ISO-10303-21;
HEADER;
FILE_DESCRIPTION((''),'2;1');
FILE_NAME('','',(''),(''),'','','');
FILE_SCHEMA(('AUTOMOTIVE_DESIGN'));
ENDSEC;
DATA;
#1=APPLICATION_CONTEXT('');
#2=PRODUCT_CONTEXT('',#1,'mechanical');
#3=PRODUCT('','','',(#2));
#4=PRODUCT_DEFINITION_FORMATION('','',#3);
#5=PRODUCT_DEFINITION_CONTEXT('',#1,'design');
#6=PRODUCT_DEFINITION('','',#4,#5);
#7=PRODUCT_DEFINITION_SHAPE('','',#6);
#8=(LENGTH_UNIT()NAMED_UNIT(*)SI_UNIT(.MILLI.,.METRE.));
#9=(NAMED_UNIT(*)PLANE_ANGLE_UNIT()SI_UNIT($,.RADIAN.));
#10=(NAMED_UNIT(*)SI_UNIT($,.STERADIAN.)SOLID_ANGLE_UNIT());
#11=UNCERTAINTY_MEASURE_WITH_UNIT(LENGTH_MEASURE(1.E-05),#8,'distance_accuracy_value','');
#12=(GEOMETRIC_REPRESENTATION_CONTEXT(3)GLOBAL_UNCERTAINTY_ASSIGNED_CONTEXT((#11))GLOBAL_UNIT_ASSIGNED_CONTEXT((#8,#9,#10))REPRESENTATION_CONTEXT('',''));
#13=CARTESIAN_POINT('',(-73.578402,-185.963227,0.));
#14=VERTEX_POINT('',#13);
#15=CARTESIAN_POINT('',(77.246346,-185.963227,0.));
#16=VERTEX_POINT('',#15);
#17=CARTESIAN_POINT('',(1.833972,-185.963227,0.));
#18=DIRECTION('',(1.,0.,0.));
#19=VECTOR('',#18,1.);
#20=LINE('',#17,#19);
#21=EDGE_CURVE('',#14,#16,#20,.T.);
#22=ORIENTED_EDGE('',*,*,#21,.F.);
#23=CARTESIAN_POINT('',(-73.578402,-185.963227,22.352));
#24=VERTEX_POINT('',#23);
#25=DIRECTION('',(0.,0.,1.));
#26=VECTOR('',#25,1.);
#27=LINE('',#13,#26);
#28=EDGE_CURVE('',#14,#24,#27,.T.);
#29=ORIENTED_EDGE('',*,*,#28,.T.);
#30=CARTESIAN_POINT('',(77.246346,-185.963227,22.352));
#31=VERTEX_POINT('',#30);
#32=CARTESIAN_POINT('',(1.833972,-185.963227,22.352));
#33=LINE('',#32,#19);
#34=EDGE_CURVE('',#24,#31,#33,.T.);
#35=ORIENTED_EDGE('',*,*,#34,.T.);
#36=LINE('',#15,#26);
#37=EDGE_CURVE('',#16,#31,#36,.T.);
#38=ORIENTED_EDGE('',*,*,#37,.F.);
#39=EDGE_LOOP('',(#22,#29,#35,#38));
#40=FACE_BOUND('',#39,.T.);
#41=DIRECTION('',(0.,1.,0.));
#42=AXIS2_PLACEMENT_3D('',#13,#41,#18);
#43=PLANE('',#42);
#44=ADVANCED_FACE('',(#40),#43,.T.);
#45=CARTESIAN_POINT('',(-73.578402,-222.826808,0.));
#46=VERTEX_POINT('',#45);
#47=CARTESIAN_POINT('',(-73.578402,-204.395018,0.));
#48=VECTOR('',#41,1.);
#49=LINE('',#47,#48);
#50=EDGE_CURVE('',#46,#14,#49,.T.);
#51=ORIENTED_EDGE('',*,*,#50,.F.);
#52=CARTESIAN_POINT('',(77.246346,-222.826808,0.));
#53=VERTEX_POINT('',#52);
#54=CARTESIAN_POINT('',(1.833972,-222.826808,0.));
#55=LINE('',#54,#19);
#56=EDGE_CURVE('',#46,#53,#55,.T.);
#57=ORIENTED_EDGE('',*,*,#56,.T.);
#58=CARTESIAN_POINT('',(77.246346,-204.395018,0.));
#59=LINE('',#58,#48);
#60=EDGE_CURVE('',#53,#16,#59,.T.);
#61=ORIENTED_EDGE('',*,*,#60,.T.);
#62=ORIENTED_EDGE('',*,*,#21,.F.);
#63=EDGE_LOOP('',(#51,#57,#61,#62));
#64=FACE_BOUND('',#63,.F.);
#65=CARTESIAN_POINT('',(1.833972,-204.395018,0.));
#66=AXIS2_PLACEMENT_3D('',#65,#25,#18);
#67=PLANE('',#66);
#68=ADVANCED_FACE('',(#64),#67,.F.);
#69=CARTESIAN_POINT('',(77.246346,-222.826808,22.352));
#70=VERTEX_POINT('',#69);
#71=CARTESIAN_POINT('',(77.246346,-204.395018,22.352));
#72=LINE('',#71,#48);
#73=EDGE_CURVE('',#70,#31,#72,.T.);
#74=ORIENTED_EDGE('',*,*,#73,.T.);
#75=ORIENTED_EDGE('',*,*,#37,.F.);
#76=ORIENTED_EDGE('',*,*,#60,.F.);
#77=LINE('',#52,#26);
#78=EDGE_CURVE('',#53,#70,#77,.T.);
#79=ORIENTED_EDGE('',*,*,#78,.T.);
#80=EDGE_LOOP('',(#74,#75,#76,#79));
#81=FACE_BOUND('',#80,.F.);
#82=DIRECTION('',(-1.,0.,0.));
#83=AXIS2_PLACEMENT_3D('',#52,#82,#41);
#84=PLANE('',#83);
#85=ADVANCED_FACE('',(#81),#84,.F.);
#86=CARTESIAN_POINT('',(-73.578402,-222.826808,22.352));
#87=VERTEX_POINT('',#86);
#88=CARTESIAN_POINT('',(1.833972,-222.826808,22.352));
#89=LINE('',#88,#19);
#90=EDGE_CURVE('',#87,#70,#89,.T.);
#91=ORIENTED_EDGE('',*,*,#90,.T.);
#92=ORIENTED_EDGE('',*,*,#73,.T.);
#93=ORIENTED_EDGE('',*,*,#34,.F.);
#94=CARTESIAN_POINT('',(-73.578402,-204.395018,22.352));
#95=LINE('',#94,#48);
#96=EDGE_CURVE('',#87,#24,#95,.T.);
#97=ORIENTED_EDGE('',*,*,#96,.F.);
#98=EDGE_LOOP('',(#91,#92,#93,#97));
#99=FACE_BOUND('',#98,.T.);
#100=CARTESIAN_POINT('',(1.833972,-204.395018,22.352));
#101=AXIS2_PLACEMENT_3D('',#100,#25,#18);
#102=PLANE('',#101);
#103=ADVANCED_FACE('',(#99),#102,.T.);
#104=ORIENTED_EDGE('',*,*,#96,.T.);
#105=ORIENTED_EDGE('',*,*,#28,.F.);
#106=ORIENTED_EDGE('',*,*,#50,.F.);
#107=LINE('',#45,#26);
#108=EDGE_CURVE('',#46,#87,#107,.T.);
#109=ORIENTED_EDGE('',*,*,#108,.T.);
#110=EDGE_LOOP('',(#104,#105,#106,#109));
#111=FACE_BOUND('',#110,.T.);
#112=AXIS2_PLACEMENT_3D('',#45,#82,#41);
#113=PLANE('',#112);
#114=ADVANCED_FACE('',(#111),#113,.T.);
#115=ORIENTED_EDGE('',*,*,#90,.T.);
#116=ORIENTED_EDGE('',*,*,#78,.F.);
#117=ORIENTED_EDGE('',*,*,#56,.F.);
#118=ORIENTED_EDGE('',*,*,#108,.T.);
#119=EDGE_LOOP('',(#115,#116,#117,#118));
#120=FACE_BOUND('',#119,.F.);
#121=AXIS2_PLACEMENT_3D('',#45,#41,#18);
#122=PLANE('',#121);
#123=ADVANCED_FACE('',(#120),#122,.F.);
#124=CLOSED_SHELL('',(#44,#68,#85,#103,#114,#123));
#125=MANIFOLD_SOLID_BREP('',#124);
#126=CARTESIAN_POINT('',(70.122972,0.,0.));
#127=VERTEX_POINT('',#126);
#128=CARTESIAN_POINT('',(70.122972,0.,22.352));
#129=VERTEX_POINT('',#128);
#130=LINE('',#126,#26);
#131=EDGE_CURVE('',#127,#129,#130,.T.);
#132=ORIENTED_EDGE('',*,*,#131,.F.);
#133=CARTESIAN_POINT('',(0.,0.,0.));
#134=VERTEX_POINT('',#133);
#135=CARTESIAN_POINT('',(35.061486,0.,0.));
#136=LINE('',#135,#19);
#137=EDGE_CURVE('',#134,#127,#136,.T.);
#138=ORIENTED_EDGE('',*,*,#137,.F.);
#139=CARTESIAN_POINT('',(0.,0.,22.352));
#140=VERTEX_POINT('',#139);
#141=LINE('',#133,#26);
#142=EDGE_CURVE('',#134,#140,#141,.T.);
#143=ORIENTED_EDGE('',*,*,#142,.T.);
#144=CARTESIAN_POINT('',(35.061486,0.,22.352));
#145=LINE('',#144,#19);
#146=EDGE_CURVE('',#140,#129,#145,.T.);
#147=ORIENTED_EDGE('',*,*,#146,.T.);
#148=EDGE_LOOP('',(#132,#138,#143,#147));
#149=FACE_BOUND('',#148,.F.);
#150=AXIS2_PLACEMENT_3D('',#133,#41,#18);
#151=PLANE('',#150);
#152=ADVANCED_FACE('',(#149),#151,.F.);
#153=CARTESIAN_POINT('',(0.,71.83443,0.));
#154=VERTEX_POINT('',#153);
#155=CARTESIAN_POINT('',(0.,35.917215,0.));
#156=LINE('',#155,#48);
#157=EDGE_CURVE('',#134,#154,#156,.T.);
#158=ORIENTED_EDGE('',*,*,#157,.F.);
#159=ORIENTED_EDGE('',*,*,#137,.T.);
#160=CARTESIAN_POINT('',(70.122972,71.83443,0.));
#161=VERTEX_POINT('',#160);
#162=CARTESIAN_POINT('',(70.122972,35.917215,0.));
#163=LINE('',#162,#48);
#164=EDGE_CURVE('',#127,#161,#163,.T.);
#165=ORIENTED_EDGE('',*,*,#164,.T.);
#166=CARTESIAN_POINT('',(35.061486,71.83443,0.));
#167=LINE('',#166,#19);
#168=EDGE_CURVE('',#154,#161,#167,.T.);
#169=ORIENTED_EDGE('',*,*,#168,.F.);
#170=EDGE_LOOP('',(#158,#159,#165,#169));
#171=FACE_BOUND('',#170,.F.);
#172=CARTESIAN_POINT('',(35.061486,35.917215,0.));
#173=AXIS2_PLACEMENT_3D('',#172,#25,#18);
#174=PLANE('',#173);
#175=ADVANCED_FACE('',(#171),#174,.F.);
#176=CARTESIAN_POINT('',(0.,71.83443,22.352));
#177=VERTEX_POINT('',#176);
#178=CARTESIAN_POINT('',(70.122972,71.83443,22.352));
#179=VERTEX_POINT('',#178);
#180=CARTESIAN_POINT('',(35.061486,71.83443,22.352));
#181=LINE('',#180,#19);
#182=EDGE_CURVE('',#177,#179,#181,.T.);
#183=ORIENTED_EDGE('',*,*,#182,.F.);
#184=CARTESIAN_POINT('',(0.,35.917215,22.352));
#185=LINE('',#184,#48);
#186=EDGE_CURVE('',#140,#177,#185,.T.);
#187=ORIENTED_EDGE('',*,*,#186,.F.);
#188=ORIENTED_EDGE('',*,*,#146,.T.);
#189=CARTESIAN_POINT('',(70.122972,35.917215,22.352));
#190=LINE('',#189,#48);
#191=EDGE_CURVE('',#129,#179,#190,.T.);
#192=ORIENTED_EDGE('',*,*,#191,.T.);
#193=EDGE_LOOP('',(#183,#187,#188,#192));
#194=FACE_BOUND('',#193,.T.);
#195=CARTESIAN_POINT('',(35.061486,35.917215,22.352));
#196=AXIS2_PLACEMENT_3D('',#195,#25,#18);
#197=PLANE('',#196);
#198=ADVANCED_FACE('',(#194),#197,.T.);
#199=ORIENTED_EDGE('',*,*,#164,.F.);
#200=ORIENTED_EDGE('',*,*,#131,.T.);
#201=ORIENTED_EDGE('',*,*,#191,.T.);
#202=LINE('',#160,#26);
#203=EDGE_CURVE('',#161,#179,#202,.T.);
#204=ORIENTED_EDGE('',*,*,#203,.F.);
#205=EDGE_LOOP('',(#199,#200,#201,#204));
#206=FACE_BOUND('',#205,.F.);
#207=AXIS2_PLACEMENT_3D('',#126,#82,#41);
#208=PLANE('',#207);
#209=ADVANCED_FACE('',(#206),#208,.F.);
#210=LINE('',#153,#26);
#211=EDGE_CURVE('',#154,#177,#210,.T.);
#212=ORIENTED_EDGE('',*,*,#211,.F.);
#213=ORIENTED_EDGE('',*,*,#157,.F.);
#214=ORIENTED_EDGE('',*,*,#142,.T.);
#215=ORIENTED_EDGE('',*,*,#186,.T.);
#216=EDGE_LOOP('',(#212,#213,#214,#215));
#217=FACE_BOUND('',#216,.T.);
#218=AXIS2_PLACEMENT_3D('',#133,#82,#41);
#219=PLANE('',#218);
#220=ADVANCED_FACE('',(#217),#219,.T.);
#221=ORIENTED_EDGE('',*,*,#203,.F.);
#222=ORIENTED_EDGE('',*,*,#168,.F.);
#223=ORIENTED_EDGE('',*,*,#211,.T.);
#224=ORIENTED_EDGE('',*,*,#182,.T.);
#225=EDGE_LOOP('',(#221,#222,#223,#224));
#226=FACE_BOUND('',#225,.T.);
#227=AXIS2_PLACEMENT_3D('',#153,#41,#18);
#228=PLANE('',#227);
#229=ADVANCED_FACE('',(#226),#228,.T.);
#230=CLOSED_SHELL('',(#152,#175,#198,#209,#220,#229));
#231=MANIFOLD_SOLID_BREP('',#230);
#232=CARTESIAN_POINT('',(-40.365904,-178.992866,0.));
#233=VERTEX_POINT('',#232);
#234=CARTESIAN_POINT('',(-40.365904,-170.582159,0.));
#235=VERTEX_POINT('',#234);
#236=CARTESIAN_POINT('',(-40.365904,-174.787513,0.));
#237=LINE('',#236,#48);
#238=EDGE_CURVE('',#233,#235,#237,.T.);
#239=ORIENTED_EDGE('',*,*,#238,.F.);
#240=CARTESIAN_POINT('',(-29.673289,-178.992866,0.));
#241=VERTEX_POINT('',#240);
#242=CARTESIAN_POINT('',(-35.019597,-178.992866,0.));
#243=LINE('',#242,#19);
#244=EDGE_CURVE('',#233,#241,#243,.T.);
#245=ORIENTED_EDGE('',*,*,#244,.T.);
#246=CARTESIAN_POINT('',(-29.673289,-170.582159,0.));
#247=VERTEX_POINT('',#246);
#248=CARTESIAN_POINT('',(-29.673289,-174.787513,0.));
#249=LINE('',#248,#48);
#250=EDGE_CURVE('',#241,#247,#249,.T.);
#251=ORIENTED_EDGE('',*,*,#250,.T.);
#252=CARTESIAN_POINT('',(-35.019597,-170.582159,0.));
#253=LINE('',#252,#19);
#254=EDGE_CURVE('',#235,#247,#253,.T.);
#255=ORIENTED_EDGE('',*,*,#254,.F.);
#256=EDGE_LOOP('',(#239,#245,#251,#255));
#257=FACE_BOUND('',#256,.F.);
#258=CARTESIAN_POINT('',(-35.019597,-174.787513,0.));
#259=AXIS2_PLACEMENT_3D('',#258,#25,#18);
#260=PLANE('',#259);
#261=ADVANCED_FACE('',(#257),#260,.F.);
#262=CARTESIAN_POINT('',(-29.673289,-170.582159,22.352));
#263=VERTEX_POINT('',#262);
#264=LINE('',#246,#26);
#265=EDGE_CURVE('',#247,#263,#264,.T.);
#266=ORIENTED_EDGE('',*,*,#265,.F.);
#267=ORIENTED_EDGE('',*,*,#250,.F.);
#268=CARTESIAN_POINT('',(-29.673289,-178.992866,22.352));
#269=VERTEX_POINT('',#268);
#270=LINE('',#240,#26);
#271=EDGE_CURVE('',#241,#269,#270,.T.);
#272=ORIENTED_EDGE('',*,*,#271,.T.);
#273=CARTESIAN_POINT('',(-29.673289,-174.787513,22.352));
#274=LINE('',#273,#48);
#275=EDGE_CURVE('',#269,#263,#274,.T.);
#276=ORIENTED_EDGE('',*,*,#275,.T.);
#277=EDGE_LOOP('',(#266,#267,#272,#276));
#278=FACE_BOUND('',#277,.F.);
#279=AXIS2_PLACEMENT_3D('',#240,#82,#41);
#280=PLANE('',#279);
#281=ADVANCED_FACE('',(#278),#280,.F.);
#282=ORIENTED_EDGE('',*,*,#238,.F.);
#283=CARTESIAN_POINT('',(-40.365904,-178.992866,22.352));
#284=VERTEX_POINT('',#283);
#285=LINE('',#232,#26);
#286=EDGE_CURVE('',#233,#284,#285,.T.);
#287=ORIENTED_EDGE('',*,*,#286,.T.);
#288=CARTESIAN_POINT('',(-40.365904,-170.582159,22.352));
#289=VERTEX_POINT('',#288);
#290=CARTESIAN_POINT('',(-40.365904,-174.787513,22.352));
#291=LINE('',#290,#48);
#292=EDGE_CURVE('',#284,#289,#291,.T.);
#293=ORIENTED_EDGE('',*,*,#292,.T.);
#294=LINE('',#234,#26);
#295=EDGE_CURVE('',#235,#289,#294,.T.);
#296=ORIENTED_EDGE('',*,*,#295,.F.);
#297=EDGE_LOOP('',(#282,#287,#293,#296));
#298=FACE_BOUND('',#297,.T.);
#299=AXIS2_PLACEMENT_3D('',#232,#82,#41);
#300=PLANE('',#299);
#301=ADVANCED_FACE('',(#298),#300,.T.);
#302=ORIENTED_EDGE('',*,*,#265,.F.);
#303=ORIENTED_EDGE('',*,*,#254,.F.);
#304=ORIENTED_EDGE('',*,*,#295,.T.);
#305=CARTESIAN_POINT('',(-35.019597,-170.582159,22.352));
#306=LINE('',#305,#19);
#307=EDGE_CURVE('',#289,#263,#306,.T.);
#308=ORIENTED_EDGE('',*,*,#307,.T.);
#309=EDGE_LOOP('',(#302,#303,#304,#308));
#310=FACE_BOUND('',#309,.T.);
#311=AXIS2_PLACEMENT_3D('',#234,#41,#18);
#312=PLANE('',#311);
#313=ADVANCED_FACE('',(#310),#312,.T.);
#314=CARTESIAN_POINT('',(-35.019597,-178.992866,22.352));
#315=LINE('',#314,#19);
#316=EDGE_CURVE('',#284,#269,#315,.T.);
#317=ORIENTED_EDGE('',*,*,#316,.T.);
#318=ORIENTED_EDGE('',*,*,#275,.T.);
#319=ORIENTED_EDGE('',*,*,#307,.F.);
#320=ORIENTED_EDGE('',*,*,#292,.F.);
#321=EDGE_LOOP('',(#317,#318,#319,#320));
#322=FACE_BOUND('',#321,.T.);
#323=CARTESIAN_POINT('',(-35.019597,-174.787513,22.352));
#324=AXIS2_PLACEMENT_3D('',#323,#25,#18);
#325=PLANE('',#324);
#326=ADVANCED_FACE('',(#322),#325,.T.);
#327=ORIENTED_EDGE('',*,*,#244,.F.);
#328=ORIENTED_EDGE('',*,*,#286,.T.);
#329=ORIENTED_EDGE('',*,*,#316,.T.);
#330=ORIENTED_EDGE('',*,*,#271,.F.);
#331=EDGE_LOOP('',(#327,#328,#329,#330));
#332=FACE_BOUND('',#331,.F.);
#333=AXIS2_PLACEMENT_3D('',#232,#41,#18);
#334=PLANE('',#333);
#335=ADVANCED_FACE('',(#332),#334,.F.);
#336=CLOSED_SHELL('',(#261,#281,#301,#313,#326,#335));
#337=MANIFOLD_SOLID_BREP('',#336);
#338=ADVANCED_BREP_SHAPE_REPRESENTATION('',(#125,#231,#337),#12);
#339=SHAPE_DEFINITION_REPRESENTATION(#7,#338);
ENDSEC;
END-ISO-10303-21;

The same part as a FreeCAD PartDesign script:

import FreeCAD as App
import Part
import Sketcher
from FreeCAD import Vector

doc = App.newDocument("Part")
params = doc.addObject("Spreadsheet::Sheet", "Params")
for row, (alias, value) in enumerate([
    ("pad1_length", "0.88 in"),
], start=1):
    params.set(f"A{row}", alias)
    params.set(f"B{row}", "=" + value)
    params.setAlias(f"B{row}", alias)

body = doc.addObject("PartDesign::Body", "Body")
body.AllowCompound = True

sketch1 = doc.addObject("Sketcher::SketchObject", "Sketch")
body.addObject(sketch1)
sketch1.AttachmentSupport = (doc.XY_Plane, [""])
sketch1.MapMode = "FlatFace"
sketch1.addGeometry([
    Part.LineSegment(Vector(0, 72, 0), Vector(0, 0, 0)),
    Part.LineSegment(Vector(0, 0, 0), Vector(70, 0, 0)),
    Part.LineSegment(Vector(70, 0, 0), Vector(70, 72, 0)),
    Part.LineSegment(Vector(70, 72, 0), Vector(0, 72, 0)),
    Part.LineSegment(Vector(-40, -171, 0), Vector(-40, -179, 0)),
    Part.LineSegment(Vector(-40, -179, 0), Vector(-30, -179, 0)),
    Part.LineSegment(Vector(-30, -179, 0), Vector(-30, -171, 0)),
    Part.LineSegment(Vector(-30, -171, 0), Vector(-40, -171, 0)),
    Part.LineSegment(Vector(-74, -186, 0), Vector(-74, -223, 0)),
    Part.LineSegment(Vector(-74, -223, 0), Vector(77, -223, 0)),
    Part.LineSegment(Vector(77, -223, 0), Vector(77, -186, 0)),
    Part.LineSegment(Vector(77, -186, 0), Vector(-74, -186, 0)),
], False)
sketch1.addConstraint([
    Sketcher.Constraint("Coincident", 0, 2, 1, 1),
    Sketcher.Constraint("Coincident", 1, 2, 2, 1),
    Sketcher.Constraint("Coincident", 2, 2, 3, 1),
    Sketcher.Constraint("Coincident", 3, 2, 0, 1),
    Sketcher.Constraint("Coincident", 4, 2, 5, 1),
    Sketcher.Constraint("Coincident", 5, 2, 6, 1),
    Sketcher.Constraint("Coincident", 6, 2, 7, 1),
    Sketcher.Constraint("Coincident", 7, 2, 4, 1),
    Sketcher.Constraint("Coincident", 8, 2, 9, 1),
    Sketcher.Constraint("Coincident", 9, 2, 10, 1),
    Sketcher.Constraint("Coincident", 10, 2, 11, 1),
    Sketcher.Constraint("Coincident", 11, 2, 8, 1),
    Sketcher.Constraint("Vertical", 0),
    Sketcher.Constraint("Horizontal", 1),
    Sketcher.Constraint("Vertical", 2),
    Sketcher.Constraint("Horizontal", 3),
    Sketcher.Constraint("Vertical", 4),
    Sketcher.Constraint("Horizontal", 5),
    Sketcher.Constraint("Vertical", 6),
    Sketcher.Constraint("Horizontal", 7),
    Sketcher.Constraint("Vertical", 8),
    Sketcher.Constraint("Horizontal", 9),
    Sketcher.Constraint("Vertical", 10),
    Sketcher.Constraint("Horizontal", 11),
    Sketcher.Constraint("Coincident", 0, 2, -1, 1),
    Sketcher.Constraint("DistanceX", 9, 1, 9, 2, 150.824748),
    Sketcher.Constraint("DistanceY", 0, 2, 0, 1, 71.83443),
    Sketcher.Constraint("DistanceY", 8, 2, 8, 1, 36.863581),
    Sketcher.Constraint("DistanceX", 8, 2, -1, 1, 73.578402),
    Sketcher.Constraint("DistanceX", 1, 1, 1, 2, 70.122972),
    Sketcher.Constraint("DistanceX", 5, 1, 5, 2, 10.692615),
    Sketcher.Constraint("DistanceY", 4, 2, 4, 1, 8.410707),
    Sketcher.Constraint("DistanceX", 5, 2, -1, 1, 29.673289),
    Sketcher.Constraint("DistanceY", 6, 2, -1, 1, 170.582159),
    Sketcher.Constraint("DistanceY", 8, 2, -1, 1, 222.826808),
])
pad1 = doc.addObject("PartDesign::Pad", "Pad")
body.addObject(pad1)
pad1.Profile = sketch1
pad1.setExpression("Length", "Params.pad1_length")

doc.recompute()
